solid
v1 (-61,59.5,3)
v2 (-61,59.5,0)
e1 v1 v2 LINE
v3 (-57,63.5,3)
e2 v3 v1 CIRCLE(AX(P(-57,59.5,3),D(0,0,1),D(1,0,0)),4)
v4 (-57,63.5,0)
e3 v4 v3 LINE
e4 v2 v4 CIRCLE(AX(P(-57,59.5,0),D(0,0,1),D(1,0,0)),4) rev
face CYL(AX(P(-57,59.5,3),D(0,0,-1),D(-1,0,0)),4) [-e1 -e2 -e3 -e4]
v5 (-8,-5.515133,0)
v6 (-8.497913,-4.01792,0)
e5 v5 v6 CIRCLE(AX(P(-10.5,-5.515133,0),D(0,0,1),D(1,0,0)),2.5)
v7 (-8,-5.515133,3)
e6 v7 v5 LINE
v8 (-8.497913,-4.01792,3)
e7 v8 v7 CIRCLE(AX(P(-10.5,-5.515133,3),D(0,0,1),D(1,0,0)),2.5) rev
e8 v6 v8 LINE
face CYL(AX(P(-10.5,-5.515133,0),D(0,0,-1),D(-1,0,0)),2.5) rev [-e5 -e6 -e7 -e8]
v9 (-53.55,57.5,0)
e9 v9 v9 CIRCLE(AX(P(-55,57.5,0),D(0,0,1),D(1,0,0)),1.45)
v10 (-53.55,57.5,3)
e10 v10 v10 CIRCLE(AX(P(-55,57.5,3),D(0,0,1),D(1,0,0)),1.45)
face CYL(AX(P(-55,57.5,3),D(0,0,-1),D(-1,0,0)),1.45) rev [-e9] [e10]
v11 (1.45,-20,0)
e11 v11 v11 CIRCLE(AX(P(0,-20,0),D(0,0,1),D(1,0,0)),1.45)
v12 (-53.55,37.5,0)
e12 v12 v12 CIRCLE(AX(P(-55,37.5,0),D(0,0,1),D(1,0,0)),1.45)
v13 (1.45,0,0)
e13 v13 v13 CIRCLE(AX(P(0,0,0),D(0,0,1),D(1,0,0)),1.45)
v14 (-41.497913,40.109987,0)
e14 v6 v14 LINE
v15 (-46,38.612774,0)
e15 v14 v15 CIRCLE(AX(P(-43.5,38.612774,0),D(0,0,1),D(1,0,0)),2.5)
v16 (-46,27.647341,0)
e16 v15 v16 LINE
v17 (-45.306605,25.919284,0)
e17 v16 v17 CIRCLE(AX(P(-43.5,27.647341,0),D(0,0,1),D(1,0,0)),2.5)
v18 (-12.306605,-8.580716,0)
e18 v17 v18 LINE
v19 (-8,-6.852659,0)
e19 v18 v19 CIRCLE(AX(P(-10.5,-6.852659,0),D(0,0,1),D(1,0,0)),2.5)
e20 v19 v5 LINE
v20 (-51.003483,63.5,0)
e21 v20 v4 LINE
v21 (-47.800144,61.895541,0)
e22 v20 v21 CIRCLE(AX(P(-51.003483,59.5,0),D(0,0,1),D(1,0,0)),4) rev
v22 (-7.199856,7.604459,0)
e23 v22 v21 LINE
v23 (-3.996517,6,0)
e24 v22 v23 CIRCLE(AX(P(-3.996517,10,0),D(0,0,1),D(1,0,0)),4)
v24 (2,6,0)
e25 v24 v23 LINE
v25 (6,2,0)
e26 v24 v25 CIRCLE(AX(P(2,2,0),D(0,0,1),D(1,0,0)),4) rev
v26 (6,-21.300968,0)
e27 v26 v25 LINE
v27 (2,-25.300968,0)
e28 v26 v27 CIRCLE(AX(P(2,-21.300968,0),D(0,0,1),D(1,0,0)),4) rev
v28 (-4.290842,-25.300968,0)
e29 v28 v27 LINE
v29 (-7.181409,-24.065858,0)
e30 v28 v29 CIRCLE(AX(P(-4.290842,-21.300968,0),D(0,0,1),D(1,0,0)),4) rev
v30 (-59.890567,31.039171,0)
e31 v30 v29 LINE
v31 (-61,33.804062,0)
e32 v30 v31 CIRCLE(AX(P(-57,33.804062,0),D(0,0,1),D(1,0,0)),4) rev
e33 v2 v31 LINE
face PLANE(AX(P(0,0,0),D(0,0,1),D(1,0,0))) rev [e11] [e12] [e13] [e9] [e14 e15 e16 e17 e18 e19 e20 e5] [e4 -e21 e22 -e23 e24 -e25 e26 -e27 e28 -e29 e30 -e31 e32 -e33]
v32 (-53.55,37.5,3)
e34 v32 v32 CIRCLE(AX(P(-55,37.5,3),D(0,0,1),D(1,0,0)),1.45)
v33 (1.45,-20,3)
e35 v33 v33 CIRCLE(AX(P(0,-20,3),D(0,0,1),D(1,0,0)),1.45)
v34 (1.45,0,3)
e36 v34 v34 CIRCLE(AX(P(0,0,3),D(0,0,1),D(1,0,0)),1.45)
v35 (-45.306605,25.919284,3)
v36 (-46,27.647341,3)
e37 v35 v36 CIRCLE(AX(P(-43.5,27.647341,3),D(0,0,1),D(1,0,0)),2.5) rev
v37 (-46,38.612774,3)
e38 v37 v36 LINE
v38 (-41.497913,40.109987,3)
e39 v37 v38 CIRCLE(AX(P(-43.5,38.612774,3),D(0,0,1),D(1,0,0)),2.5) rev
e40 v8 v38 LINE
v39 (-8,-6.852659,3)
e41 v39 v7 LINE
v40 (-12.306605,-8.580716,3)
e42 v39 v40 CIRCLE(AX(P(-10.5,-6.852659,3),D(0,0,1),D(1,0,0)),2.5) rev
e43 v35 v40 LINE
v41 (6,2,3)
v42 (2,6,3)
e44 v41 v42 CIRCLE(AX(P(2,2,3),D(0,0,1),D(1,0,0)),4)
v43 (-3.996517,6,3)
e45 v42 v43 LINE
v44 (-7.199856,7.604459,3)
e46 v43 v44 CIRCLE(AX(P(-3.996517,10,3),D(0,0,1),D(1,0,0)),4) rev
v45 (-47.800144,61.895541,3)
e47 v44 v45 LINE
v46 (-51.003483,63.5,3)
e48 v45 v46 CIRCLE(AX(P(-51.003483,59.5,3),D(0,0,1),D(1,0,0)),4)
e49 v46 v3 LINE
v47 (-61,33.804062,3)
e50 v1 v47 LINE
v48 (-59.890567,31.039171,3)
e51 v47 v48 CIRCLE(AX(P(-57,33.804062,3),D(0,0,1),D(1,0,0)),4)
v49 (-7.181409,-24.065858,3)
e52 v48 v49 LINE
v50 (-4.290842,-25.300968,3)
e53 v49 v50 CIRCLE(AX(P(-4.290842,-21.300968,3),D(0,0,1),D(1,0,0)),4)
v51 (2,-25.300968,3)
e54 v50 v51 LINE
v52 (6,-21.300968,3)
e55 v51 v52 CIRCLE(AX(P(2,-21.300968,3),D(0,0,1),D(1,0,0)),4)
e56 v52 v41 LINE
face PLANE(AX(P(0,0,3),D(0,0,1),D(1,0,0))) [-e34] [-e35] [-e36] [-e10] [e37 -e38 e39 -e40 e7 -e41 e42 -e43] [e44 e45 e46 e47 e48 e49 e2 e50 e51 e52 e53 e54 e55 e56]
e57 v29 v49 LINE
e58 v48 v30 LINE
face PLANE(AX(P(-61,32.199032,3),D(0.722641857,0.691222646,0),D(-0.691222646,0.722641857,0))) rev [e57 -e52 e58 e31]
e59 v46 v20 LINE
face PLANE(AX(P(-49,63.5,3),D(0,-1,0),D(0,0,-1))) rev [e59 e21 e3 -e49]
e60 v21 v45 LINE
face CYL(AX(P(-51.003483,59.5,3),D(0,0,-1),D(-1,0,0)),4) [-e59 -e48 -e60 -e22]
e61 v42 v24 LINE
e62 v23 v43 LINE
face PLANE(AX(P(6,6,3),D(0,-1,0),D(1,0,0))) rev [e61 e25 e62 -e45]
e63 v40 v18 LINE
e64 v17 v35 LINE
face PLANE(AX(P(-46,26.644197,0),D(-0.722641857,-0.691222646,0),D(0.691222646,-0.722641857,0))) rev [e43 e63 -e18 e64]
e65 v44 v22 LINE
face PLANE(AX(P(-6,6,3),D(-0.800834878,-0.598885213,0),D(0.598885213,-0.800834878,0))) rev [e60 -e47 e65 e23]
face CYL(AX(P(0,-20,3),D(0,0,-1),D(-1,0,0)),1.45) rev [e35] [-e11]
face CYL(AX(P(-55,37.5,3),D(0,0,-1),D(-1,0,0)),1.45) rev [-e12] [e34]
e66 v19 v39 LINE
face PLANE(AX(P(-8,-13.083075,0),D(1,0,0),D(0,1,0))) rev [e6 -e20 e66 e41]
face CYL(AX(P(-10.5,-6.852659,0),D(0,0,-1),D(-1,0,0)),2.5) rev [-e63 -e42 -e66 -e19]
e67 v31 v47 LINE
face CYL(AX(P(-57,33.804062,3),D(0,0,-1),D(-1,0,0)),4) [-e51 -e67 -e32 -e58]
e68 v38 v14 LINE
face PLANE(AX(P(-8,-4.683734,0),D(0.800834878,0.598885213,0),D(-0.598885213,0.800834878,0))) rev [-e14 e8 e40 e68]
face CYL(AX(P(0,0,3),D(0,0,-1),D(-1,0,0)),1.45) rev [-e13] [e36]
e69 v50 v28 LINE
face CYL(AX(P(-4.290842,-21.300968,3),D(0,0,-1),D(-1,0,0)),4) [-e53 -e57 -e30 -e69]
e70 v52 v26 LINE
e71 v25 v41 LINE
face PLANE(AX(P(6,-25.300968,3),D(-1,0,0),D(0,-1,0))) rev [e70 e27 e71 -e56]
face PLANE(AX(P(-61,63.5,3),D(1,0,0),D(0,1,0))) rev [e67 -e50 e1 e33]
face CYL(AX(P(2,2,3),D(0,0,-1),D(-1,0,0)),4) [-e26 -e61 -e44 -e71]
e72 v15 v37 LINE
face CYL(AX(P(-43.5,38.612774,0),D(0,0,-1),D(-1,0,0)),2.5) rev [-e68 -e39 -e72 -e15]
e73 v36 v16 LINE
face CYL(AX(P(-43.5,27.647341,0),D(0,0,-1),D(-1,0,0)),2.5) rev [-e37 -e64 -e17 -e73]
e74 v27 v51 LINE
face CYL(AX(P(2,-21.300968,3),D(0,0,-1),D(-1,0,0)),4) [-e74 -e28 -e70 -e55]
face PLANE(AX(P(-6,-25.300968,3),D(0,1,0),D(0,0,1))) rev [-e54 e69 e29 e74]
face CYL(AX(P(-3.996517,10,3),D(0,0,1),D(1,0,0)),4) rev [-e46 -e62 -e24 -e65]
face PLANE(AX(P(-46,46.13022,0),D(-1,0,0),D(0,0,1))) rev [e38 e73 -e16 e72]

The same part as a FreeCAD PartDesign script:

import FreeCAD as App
import Part
import Sketcher
from FreeCAD import Vector


def edges_at(feature, points):
    """Names of the edges that pass closest to the given points."""
    edges = feature.Shape.Edges
    near = lambda p: min(range(len(edges)), key=lambda i: edges[i].distToShape(Part.Vertex(*p))[0])
    return sorted({f"Edge{near(p) + 1}" for p in points})

doc = App.newDocument("Part")
body = doc.addObject("PartDesign::Body", "Body")

# Sketch on XY plane
sketch1 = doc.addObject("Sketcher::SketchObject", "Sketch")
body.addObject(sketch1)
sketch1.AttachmentSupport = (doc.XY_Plane, [""])
sketch1.MapMode = "FlatFace"
sketch1.addGeometry([
    Part.LineSegment(Vector(-49, 63.5, 0), Vector(-61, 63.5, 0)),  # 0
    Part.LineSegment(Vector(-61, 63.5, 0), Vector(-61, 32.199032, 0)),  # 1
    Part.LineSegment(Vector(-61, 32.199032, 0), Vector(-6, -25.300968, 0)),  # 2
    Part.LineSegment(Vector(-6, -25.300968, 0), Vector(6, -25.300968, 0)),  # 3
    Part.LineSegment(Vector(6, -25.300968, 0), Vector(6, 6, 0)),  # 4
    Part.LineSegment(Vector(6, 6, 0), Vector(-6, 6, 0)),  # 5
    Part.LineSegment(Vector(-6, 6, 0), Vector(-49, 63.5, 0)),  # 6
    Part.Circle(Vector(0, -20, 0), Vector(0, 0, 1), 1.45),  # 7
    Part.Circle(Vector(0, 0, 0), Vector(0, 0, 1), 1.45),  # 8
    Part.Circle(Vector(-55, 37.5, 0), Vector(0, 0, 1), 1.45),  # 9
    Part.Circle(Vector(-55, 57.5, 0), Vector(0, 0, 1), 1.45),  # 10
], False)
sketch1.addConstraint([
    Sketcher.Constraint("Coincident", 0, 2, 1, 1),
    Sketcher.Constraint("Coincident", 1, 2, 2, 1),
    Sketcher.Constraint("Coincident", 2, 2, 3, 1),
    Sketcher.Constraint("Coincident", 3, 2, 4, 1),
    Sketcher.Constraint("Coincident", 4, 2, 5, 1),
    Sketcher.Constraint("Coincident", 5, 2, 6, 1),
    Sketcher.Constraint("Coincident", 6, 2, 0, 1),
    Sketcher.Constraint("Horizontal", 0),
    Sketcher.Constraint("Vertical", 1),
    Sketcher.Constraint("Horizontal", 3),
    Sketcher.Constraint("Vertical", 4),
    Sketcher.Constraint("Horizontal", 5),
    Sketcher.Constraint("Coincident", 8, 3, -1, 1),
    Sketcher.Constraint("Equal", 7, 8),
    Sketcher.Constraint("Equal", 8, 9),
    Sketcher.Constraint("Equal", 9, 10),
    Sketcher.Constraint("PointOnObject", 7, 3, -2),
    Sketcher.Constraint("Vertical", 9, 3, 10, 3),
    Sketcher.Constraint("Vertical", 2, 2, 5, 2),
    Sketcher.Constraint("Equal", 0, 3),
    Sketcher.Constraint("Equal", 1, 4),
    Sketcher.Constraint("Diameter", 7, 2.9),
    Sketcher.Constraint("DistanceX", 0, 2, 0, 1, 12.0),
    Sketcher.Constraint("DistanceY", 7, 3, -1, 1, 20.0),
    Sketcher.Constraint("DistanceX", 9, 3, -1, 1, 55.0),
    Sketcher.Constraint("DistanceX", 0, 2, -1, 1, 61.0),
    Sketcher.Constraint("DistanceX", 2, 2, -1, 1, 6.0),
    Sketcher.Constraint("DistanceY", -1, 1, 4, 2, 6.0),
    Sketcher.Constraint("DistanceY", 9, 3, 10, 3, 20.0),
    Sketcher.Constraint("DistanceY", 10, 3, 0, 2, 6.0),
    Sketcher.Constraint("DistanceY", -1, 1, 9, 3, 37.5),
    Sketcher.Constraint("DistanceY", 1, 2, 1, 1, 31.300968),
])
pad1 = doc.addObject("PartDesign::Pad", "Pad")
body.addObject(pad1)
pad1.Profile = sketch1
pad1.Length = 3

# Sketch on XY plane
sketch2 = doc.addObject("Sketcher::SketchObject", "Sketch001")
body.addObject(sketch2)
sketch2.AttachmentSupport = (doc.XY_Plane, [""])
sketch2.MapMode = "FlatFace"
sketch2.AttachmentOffset = App.Placement(Vector(0, 0, 3), App.Rotation())
sketch2.addGeometry([
    Part.LineSegment(Vector(-46, 46.13022, 0), Vector(-46, 26.644197, 0)),
    Part.LineSegment(Vector(-46, 26.644197, 0), Vector(-8, -13.083075, 0)),
    Part.LineSegment(Vector(-8, -13.083075, 0), Vector(-8, -4.683734, 0)),
    Part.LineSegment(Vector(-8, -4.683734, 0), Vector(-46, 46.13022, 0)),
], False)
sketch2.addConstraint([
    Sketcher.Constraint("Coincident", 0, 2, 1, 1),
    Sketcher.Constraint("Coincident", 1, 2, 2, 1),
    Sketcher.Constraint("Coincident", 2, 2, 3, 1),
    Sketcher.Constraint("Coincident", 3, 2, 0, 1),
    Sketcher.Constraint("Vertical", 0),
    Sketcher.Constraint("Vertical", 2),
    Sketcher.Constraint("DistanceX", 0, 2, -1, 1, 46.0),
    Sketcher.Constraint("DistanceX", 1, 2, -1, 1, 8.0),
    Sketcher.Constraint("DistanceY", 2, 1, 2, 2, 8.399342),
    Sketcher.Constraint("Distance", 1, 54.975051),
    Sketcher.Constraint("DistanceY", 0, 2, 0, 1, 19.486022),
    Sketcher.Constraint("DistanceY", -1, 1, 3, 2, 46.13022),
])
pocket1 = doc.addObject("PartDesign::Pocket", "Pocket")
body.addObject(pocket1)
pocket1.Profile = sketch2
pocket1.Length = 3
doc.recompute()

fillet = doc.addObject("PartDesign::Fillet", "Fillet")
body.addObject(fillet)
fillet.Base = (pocket1, edges_at(pocket1, [
    (-6, 6, 1.5),
    (6, 6, 1.5),
    (6, -25.301, 1.5),
    (-6, -25.301, 1.5),
    (-61, 32.199, 1.5),
    (-61, 63.5, 1.5),
    (-49, 63.5, 1.5),
]))
fillet.Radius = 4
doc.recompute()

fillet2 = doc.addObject("PartDesign::Fillet", "Fillet001")
body.addObject(fillet2)
fillet2.Base = (fillet, edges_at(fillet, [
    (-46, 46.13, 1.5),
    (-8, -4.684, 1.5),
    (-8, -13.083, 1.5),
    (-46, 26.644, 1.5),
]))
fillet2.Radius = 2.5

doc.recompute()
